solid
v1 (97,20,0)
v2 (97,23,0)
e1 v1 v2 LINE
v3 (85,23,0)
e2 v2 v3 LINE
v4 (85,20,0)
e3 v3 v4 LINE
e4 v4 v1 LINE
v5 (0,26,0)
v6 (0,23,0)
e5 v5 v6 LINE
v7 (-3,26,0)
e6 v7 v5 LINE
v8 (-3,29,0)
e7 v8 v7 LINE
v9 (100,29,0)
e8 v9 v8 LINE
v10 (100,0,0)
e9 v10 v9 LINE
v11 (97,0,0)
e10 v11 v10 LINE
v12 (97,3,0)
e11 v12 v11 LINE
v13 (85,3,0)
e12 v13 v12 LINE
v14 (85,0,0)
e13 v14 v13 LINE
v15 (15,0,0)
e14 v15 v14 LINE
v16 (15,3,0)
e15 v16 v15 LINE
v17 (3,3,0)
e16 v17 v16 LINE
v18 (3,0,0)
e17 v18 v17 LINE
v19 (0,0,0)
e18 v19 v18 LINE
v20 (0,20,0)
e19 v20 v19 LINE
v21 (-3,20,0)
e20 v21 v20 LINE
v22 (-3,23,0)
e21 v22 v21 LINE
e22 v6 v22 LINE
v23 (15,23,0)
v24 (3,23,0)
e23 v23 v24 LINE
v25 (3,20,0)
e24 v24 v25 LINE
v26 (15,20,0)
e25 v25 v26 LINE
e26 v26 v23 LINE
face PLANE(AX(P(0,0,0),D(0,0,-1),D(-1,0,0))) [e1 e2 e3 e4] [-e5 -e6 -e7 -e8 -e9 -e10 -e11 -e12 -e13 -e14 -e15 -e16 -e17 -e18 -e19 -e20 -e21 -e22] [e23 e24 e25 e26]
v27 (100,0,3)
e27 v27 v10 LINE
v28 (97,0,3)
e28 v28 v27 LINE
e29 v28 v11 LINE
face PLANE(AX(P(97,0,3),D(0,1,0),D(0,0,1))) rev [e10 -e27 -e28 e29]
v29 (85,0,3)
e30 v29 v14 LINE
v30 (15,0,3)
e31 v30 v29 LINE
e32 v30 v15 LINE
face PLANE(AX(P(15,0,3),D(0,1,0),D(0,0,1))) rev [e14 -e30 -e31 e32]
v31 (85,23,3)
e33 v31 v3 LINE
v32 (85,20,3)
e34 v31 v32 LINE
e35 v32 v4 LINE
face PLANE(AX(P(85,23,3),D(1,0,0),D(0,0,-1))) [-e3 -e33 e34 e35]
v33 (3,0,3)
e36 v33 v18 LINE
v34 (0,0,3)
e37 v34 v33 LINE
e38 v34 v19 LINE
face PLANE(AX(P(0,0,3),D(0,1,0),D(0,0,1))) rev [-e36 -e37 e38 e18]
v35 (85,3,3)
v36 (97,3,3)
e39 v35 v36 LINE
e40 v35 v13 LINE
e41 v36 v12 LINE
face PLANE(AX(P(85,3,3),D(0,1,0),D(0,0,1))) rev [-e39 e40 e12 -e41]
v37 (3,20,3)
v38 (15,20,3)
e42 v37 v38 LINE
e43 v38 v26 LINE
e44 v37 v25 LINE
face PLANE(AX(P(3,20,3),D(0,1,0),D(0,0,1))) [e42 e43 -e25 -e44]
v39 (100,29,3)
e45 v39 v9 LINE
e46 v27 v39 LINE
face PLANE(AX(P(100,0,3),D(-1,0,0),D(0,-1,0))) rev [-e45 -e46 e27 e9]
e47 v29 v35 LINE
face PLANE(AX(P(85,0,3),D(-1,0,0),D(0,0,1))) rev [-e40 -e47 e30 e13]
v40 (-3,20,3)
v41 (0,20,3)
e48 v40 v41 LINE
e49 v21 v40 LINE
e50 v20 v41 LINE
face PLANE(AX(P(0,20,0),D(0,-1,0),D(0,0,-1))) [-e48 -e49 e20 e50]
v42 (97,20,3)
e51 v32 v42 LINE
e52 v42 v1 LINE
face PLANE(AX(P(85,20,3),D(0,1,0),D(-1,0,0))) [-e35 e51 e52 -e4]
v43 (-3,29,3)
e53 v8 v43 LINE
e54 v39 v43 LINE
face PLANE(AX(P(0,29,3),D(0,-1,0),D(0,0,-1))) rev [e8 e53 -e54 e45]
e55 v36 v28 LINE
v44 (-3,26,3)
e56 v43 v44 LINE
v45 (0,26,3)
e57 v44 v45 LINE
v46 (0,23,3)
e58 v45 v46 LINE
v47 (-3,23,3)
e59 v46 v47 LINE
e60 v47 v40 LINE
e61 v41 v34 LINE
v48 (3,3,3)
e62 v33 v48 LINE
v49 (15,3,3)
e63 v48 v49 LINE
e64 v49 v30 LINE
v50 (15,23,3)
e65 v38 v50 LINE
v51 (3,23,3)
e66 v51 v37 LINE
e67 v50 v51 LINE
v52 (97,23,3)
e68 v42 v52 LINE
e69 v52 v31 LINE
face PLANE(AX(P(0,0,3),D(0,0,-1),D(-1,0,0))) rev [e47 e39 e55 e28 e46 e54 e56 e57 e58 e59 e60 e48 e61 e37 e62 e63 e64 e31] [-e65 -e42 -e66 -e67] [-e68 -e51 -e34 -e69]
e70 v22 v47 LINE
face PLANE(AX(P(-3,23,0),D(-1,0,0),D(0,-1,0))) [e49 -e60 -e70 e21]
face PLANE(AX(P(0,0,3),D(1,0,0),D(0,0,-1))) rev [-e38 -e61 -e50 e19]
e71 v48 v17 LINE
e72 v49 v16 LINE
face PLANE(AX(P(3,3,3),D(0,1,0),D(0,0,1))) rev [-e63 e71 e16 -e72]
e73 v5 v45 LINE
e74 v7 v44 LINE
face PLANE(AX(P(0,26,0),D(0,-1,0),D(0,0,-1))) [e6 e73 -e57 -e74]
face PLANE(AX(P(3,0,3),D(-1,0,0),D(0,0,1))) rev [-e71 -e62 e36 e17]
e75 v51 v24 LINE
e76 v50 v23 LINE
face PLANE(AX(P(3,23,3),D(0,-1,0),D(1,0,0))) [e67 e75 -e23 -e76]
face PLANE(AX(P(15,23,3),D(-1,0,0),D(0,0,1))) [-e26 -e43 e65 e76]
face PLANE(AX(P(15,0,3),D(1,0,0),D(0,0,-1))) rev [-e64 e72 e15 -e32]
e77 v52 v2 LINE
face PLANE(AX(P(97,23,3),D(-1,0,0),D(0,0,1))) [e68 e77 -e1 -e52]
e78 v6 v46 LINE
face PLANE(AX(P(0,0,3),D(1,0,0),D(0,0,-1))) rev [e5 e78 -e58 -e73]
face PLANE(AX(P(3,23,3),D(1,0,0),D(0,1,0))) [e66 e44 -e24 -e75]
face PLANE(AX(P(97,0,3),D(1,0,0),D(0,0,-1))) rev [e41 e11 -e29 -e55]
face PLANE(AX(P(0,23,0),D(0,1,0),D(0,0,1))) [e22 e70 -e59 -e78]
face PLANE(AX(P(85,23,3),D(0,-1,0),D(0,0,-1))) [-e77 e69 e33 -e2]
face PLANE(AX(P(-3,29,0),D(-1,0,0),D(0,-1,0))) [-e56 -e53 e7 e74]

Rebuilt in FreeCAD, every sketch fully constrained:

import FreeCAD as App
import Part
import Sketcher

V = App.Vector


def add_polygon(sketch, points):
    """Adds a closed chain of lines whose ends are joined by coincident constraints."""
    first, n = sketch.GeometryCount, len(points)
    for a, b in zip(points, points[1:] + points[:1]):
        sketch.addGeometry(Part.LineSegment(App.Vector(*a, 0), App.Vector(*b, 0)), False)
    for i in range(n):
        sketch.addConstraint(Sketcher.Constraint("Coincident", first + i, 2, first + (i + 1) % n, 1))

doc = App.newDocument("Part")
body = doc.addObject("PartDesign::Body", "Body")

sketch1 = body.newObject("Sketcher::SketchObject", "Sketch")
sketch1.AttachmentSupport = (doc.getObject("XY_Plane"), [""])
sketch1.MapMode = "FlatFace"
add_polygon(sketch1, [(0, 0), (3, 0), (3, 3), (15, 3), (15, 0), (85, 0), (85, 3), (97, 3), (97, 0), (100, 0), (100, 29), (0, 29)])
add_polygon(sketch1, [(15, 20), (3, 20), (3, 23), (15, 23)])
add_polygon(sketch1, [(97, 20), (85, 20), (85, 23), (97, 23)])
sketch1.addConstraint(Sketcher.Constraint("Horizontal", 0))
sketch1.addConstraint(Sketcher.Constraint("Vertical", 1))
sketch1.addConstraint(Sketcher.Constraint("Horizontal", 2))
sketch1.addConstraint(Sketcher.Constraint("Vertical", 3))
sketch1.addConstraint(Sketcher.Constraint("Horizontal", 4))
sketch1.addConstraint(Sketcher.Constraint("Vertical", 5))
sketch1.addConstraint(Sketcher.Constraint("Horizontal", 6))
sketch1.addConstraint(Sketcher.Constraint("Vertical", 7))
sketch1.addConstraint(Sketcher.Constraint("Horizontal", 8))
sketch1.addConstraint(Sketcher.Constraint("Vertical", 9))
sketch1.addConstraint(Sketcher.Constraint("Horizontal", 10))
sketch1.addConstraint(Sketcher.Constraint("Vertical", 11))
sketch1.addConstraint(Sketcher.Constraint("Horizontal", 12))
sketch1.addConstraint(Sketcher.Constraint("Vertical", 13))
sketch1.addConstraint(Sketcher.Constraint("Horizontal", 14))
sketch1.addConstraint(Sketcher.Constraint("Vertical", 15))
sketch1.addConstraint(Sketcher.Constraint("Horizontal", 16))
sketch1.addConstraint(Sketcher.Constraint("Vertical", 17))
sketch1.addConstraint(Sketcher.Constraint("Horizontal", 18))
sketch1.addConstraint(Sketcher.Constraint("Vertical", 19))
sketch1.addConstraint(Sketcher.Constraint("Coincident", 11, 2, -1, 1))
sketch1.addConstraint(Sketcher.Constraint("PointOnObject", 3, 2, -1))
sketch1.addConstraint(Sketcher.Constraint("PointOnObject", 7, 2, -1))
sketch1.addConstraint(Sketcher.Constraint("Horizontal", 2, 2, 5, 2))
sketch1.addConstraint(Sketcher.Constraint("Horizontal", 15, 2, 16, 2))
sketch1.addConstraint(Sketcher.Constraint("Horizontal", 14, 2, 17, 2))
sketch1.addConstraint(Sketcher.Constraint("Vertical", 1, 2, 12, 2))
sketch1.addConstraint(Sketcher.Constraint("Vertical", 3, 2, 14, 2))
sketch1.addConstraint(Sketcher.Constraint("Vertical", 5, 2, 16, 2))
sketch1.addConstraint(Sketcher.Constraint("Vertical", 7, 2, 18, 2))
sketch1.addConstraint(Sketcher.Constraint("Equal", 2, 6))
sketch1.addConstraint(Sketcher.Constraint("Equal", 0, 8))
sketch1.addConstraint(Sketcher.Constraint("Equal", 8, 1))
sketch1.addConstraint(Sketcher.Constraint("Equal", 7, 13))
sketch1.addConstraint(Sketcher.Constraint("DistanceX", 0, 1, 0, 2, 3.0))
sketch1.addConstraint(Sketcher.Constraint("DistanceX", 2, 1, 2, 2, 12.0))
sketch1.addConstraint(Sketcher.Constraint("DistanceX", 4, 1, 4, 2, 70.0))
sketch1.addConstraint(Sketcher.Constraint("DistanceY", 9, 1, 9, 2, 29.0))
sketch1.addConstraint(Sketcher.Constraint("DistanceY", -1, 1, 12, 2, 20.0))
pad1 = body.newObject("PartDesign::Pad", "Pad")
pad1.Profile = sketch1
pad1.Length = 3

sketch2 = body.newObject("Sketcher::SketchObject", "Sketch001")
sketch2.AttachmentSupport = (doc.getObject("XY_Plane"), [""])
sketch2.MapMode = "FlatFace"
sketch2.AttachmentOffset = App.Placement(V(0, 0, 3), App.Rotation())
add_polygon(sketch2, [(-3, 23), (-3, 20), (0, 20), (0, 23)])
add_polygon(sketch2, [(-3, 29), (-3, 26), (0, 26), (0, 29)])
sketch2.addConstraint(Sketcher.Constraint("Vertical", 0))
sketch2.addConstraint(Sketcher.Constraint("Horizontal", 1))
sketch2.addConstraint(Sketcher.Constraint("Vertical", 2))
sketch2.addConstraint(Sketcher.Constraint("Horizontal", 3))
sketch2.addConstraint(Sketcher.Constraint("Vertical", 4))
sketch2.addConstraint(Sketcher.Constraint("Horizontal", 5))
sketch2.addConstraint(Sketcher.Constraint("Vertical", 6))
sketch2.addConstraint(Sketcher.Constraint("Horizontal", 7))
sketch2.addConstraint(Sketcher.Constraint("PointOnObject", 1, 2, -2))
sketch2.addConstraint(Sketcher.Constraint("PointOnObject", 5, 2, -2))
sketch2.addConstraint(Sketcher.Constraint("Vertical", 3, 2, 4, 2))
sketch2.addConstraint(Sketcher.Constraint("Equal", 7, 0))
sketch2.addConstraint(Sketcher.Constraint("Equal", 2, 4))
sketch2.addConstraint(Sketcher.Constraint("DistanceX", 1, 1, 1, 2, 3.0))
sketch2.addConstraint(Sketcher.Constraint("DistanceY", -1, 1, 0, 2, 20.0))
sketch2.addConstraint(Sketcher.Constraint("DistanceY", -1, 1, 4, 2, 26.0))
pad2 = body.newObject("PartDesign::Pad", "Pad001")
pad2.Profile = sketch2
pad2.Length = 3
pad2.Reversed = True

doc.recompute()
